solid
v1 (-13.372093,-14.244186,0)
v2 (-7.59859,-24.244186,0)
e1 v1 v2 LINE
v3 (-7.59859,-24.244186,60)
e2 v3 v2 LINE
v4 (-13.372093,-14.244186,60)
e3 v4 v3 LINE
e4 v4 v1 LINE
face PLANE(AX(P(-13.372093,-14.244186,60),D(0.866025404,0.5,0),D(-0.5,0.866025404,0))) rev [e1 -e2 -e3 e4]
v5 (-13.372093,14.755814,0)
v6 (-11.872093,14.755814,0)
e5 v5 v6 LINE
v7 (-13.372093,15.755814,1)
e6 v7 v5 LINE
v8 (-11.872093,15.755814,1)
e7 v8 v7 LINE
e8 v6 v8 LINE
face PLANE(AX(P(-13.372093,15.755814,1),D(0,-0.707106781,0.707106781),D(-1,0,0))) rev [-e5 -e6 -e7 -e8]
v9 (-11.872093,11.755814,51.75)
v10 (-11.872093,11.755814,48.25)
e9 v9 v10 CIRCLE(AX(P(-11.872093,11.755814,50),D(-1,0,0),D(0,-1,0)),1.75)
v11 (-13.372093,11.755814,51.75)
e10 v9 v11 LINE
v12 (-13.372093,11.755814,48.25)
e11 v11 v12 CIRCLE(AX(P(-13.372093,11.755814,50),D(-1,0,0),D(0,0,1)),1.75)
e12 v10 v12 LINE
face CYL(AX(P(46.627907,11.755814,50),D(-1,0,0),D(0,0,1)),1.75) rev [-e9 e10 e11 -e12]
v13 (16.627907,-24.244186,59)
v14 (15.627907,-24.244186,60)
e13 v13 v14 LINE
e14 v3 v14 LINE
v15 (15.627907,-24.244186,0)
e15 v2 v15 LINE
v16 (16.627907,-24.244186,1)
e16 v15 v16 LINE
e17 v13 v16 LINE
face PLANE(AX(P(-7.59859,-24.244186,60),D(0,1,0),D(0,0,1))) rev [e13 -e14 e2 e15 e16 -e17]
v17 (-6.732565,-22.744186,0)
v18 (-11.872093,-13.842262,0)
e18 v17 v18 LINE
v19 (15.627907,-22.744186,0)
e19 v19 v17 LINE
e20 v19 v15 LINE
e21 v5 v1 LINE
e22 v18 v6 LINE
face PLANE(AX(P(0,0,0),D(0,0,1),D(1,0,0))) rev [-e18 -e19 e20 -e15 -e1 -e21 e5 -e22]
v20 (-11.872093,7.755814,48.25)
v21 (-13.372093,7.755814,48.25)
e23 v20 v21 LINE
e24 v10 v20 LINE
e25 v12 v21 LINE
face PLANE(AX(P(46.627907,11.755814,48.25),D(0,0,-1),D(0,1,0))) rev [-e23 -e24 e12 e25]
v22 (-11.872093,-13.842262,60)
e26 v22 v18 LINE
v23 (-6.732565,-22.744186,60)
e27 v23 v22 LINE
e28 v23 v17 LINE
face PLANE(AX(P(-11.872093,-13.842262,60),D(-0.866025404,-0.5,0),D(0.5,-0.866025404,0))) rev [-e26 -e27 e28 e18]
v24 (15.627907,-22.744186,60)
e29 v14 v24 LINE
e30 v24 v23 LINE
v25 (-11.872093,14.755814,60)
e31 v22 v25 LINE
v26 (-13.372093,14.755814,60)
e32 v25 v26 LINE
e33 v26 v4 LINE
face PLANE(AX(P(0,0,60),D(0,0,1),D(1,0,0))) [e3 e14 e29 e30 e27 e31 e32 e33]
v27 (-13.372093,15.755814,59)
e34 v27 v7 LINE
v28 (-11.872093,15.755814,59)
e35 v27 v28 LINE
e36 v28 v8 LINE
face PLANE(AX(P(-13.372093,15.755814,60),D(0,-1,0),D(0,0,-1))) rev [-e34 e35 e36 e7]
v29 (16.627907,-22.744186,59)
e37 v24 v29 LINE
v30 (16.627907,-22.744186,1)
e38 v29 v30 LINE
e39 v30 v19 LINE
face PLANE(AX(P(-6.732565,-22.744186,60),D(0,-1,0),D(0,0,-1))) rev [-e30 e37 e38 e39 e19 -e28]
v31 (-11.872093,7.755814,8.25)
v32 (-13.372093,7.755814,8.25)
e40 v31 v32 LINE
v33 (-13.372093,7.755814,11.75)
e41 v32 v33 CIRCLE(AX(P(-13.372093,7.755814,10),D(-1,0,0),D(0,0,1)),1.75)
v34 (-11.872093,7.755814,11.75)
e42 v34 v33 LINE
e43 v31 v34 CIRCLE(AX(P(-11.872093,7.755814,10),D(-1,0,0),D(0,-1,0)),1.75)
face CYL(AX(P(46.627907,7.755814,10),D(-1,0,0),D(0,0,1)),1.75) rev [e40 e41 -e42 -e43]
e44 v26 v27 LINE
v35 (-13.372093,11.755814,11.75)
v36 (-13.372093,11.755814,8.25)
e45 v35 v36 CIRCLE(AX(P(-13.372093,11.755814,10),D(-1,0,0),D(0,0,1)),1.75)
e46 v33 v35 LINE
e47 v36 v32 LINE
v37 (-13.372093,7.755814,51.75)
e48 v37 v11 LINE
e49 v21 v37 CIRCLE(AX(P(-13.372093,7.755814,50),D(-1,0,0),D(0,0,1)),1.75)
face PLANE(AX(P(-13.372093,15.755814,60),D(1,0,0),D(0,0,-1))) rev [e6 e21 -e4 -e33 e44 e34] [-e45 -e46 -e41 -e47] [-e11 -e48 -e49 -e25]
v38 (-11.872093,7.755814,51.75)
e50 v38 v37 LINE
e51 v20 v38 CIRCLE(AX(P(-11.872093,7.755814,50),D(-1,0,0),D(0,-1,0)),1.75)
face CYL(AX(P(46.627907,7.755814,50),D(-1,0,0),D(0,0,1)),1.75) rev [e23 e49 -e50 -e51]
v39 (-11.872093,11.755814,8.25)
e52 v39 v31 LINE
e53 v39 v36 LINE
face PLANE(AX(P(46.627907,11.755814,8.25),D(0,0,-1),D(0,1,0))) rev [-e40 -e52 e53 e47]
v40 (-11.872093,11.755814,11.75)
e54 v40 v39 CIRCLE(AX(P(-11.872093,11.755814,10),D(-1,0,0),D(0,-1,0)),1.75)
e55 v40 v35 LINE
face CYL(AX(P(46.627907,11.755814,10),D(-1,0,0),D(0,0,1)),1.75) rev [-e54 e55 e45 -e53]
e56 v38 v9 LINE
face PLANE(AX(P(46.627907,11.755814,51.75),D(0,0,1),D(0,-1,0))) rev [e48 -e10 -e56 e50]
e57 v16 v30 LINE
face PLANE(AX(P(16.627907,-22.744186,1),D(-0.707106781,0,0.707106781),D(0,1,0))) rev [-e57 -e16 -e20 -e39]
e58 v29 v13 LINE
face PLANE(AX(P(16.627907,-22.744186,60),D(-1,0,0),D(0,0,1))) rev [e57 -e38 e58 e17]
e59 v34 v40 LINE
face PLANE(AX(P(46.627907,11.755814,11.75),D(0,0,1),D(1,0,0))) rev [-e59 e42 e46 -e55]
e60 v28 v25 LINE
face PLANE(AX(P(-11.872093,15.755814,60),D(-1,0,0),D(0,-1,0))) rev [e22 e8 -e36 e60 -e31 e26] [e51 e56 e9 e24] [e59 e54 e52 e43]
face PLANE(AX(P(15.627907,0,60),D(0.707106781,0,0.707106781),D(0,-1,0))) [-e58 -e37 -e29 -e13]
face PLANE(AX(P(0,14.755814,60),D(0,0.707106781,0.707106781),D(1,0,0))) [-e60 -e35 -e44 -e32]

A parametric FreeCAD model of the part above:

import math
import FreeCAD as App
import Part
import Sketcher
Q = App.Units.Quantity


def edges_at(feature, points):
    """Names of the edges that pass closest to the given points."""
    edges = feature.Shape.Edges
    near = lambda p: min(range(len(edges)), key=lambda i: edges[i].distToShape(Part.Vertex(*p))[0])
    return sorted({f"Edge{near(p) + 1}" for p in points})

doc = App.newDocument("Part")
body = doc.addObject("PartDesign::Body", "Body")

# Sketch on XY plane
sketch1 = doc.addObject("Sketcher::SketchObject", "Sketch")
body.addObject(sketch1)
sketch1.AttachmentSupport = (doc.XY_Plane, [""])
sketch1.MapMode = "FlatFace"
sketch1.addGeometry([
    Part.LineSegment(App.Vector(-13.4, -14.2, 0), App.Vector(-7.6, -24.2, 0)),  # 0
    Part.LineSegment(App.Vector(-7.6, -24.2, 0), App.Vector(16.6, -24.2, 0)),  # 1
    Part.LineSegment(App.Vector(16.6, -24.2, 0), App.Vector(16.6, -22.7, 0)),  # 2
    Part.LineSegment(App.Vector(16.6, -22.7, 0), App.Vector(-6.7, -22.7, 0)),  # 3
    Part.LineSegment(App.Vector(-6.7, -22.7, 0), App.Vector(-11.9, -13.8, 0)),  # 4
    Part.LineSegment(App.Vector(-11.9, -13.8, 0), App.Vector(-11.9, 15.8, 0)),  # 5
    Part.LineSegment(App.Vector(-11.9, 15.8, 0), App.Vector(-13.4, 15.8, 0)),  # 6
    Part.LineSegment(App.Vector(-13.4, 15.8, 0), App.Vector(-13.4, -14.2, 0)),  # 7
], False)
sketch1.addConstraint([
    Sketcher.Constraint("Coincident", 0, 2, 1, 1),
    Sketcher.Constraint("Coincident", 1, 2, 2, 1),
    Sketcher.Constraint("Coincident", 2, 2, 3, 1),
    Sketcher.Constraint("Coincident", 3, 2, 4, 1),
    Sketcher.Constraint("Coincident", 4, 2, 5, 1),
    Sketcher.Constraint("Coincident", 5, 2, 6, 1),
    Sketcher.Constraint("Coincident", 6, 2, 7, 1),
    Sketcher.Constraint("Coincident", 7, 2, 0, 1),
    Sketcher.Constraint("Horizontal", 1),
    Sketcher.Constraint("Vertical", 2),
    Sketcher.Constraint("Horizontal", 3),
    Sketcher.Constraint("Vertical", 5),
    Sketcher.Constraint("Horizontal", 6),
    Sketcher.Constraint("Vertical", 7),
    Sketcher.Constraint("Parallel", 0, 4),
    Sketcher.Constraint("Equal", 6, 2),
    Sketcher.Constraint("DistanceY", 7, 2, 7, 1, 30.0),
    Sketcher.Constraint("Angle", 0, Q("-60 deg")),
    Sketcher.Constraint("DistanceX", 6, 2, 6, 1, 1.5),
    Sketcher.Constraint("DistanceY", 0, 2, 5, 2, 40.0),
    Sketcher.Constraint("DistanceX", 6, 2, 2, 2, 30.0),
    Sketcher.Constraint("DistanceX", 3, 2, 3, 1, 23.360472),
    Sketcher.Constraint("DistanceX", 0, 2, -1, 1, 7.59859),
    Sketcher.Constraint("DistanceY", 0, 2, -1, 1, 24.244186),
])
pad1 = doc.addObject("PartDesign::Pad", "Pad")
body.addObject(pad1)
pad1.Profile = sketch1
pad1.Length = 60

# Sketch on YZ plane
sketch2 = doc.addObject("Sketcher::SketchObject", "Sketch001")
body.addObject(sketch2)
sketch2.AttachmentSupport = (doc.YZ_Plane, [""])
sketch2.MapMode = "FlatFace"
sketch2.AttachmentOffset = App.Placement(App.Vector(0, 0, -13.372093), App.Rotation())
sketch2.addGeometry([
    Part.LineSegment(App.Vector(11.8, 8.2, 0), App.Vector(7.8, 8.2, 0)),  # 0
    Part.ArcOfCircle(Part.Circle(App.Vector(7.8, 10, 0), App.Vector(0, 0, 1), 1.8), math.radians(90), math.radians(270)),  # 1
    Part.LineSegment(App.Vector(7.8, 11.8, 0), App.Vector(11.8, 11.8, 0)),  # 2
    Part.ArcOfCircle(Part.Circle(App.Vector(11.8, 10, 0), App.Vector(0, 0, 1), 1.8), math.radians(-90), math.radians(90)),  # 3
    Part.LineSegment(App.Vector(11.8, 48.2, 0), App.Vector(7.8, 48.2, 0)),  # 4
    Part.ArcOfCircle(Part.Circle(App.Vector(7.8, 50, 0), App.Vector(0, 0, 1), 1.8), math.radians(90), math.radians(270)),  # 5
    Part.LineSegment(App.Vector(7.8, 51.8, 0), App.Vector(11.8, 51.8, 0)),  # 6
    Part.ArcOfCircle(Part.Circle(App.Vector(11.8, 50, 0), App.Vector(0, 0, 1), 1.8), math.radians(-90), math.radians(90)),  # 7
], False)
sketch2.addConstraint([
    Sketcher.Constraint("Tangent", 0, 2, 1, 2),
    Sketcher.Constraint("Tangent", 1, 1, 2, 1),
    Sketcher.Constraint("Tangent", 2, 2, 3, 2),
    Sketcher.Constraint("Tangent", 3, 1, 0, 1),
    Sketcher.Constraint("Tangent", 4, 2, 5, 2),
    Sketcher.Constraint("Tangent", 5, 1, 6, 1),
    Sketcher.Constraint("Tangent", 6, 2, 7, 2),
    Sketcher.Constraint("Tangent", 7, 1, 4, 1),
    Sketcher.Constraint("Horizontal", 0),
    Sketcher.Constraint("Horizontal", 2),
    Sketcher.Constraint("Horizontal", 4),
    Sketcher.Constraint("Horizontal", 6),
    Sketcher.Constraint("Equal", 3, 5),
    Sketcher.Constraint("Vertical", 1, 3, 5, 3),
    Sketcher.Constraint("Vertical", 3, 3, 7, 3),
    Sketcher.Constraint("DistanceX", 0, 2, 0, 1, 4.0),
    Sketcher.Constraint("Radius", 1, 1.75),
    Sketcher.Constraint("DistanceY", -1, 1, 1, 3, 10.0),
    Sketcher.Constraint("DistanceY", -1, 1, 5, 3, 50.0),
    Sketcher.Constraint("DistanceX", -1, 1, 1, 3, 7.755814),
])
pocket1 = doc.addObject("PartDesign::Pocket", "Pocket")
body.addObject(pocket1)
pocket1.Profile = sketch2
pocket1.Length = 60
pocket1.Reversed = True
doc.recompute()

chamfer = doc.addObject("PartDesign::Chamfer", "Chamfer")
body.addObject(chamfer)
chamfer.Base = (pocket1, edges_at(pocket1, [
    (16.628, -23.494, 60),
    (-12.622, 15.756, 60),
    (-12.622, 15.756, 0),
    (16.628, -23.494, 0),
]))
chamfer.Size = 1

doc.recompute()
